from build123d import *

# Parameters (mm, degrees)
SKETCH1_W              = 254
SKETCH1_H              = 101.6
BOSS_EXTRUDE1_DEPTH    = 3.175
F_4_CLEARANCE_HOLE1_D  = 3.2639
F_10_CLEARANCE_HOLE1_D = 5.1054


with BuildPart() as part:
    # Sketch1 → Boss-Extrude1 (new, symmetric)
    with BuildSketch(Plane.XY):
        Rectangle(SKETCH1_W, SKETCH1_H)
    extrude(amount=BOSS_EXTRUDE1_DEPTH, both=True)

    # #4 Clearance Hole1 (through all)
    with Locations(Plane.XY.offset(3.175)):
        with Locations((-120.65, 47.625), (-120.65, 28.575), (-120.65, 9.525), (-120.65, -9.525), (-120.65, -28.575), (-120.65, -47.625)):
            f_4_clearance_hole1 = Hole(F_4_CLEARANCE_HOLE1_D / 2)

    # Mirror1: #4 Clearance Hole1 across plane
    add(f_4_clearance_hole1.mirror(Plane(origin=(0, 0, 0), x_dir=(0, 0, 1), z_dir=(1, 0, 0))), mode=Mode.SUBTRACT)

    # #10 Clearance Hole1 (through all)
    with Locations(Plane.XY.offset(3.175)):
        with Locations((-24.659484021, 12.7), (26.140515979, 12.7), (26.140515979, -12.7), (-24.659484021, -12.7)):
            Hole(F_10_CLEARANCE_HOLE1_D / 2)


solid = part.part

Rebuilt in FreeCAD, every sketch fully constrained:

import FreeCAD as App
import Part
import Sketcher
Q = App.Units.Quantity

doc = App.newDocument("Part")
body = doc.addObject("PartDesign::Body", "Body")

sketch1 = body.newObject("Sketcher::SketchObject", "Sketch")
sketch1.AttachmentSupport = (doc.getObject("XY_Plane"), [""])
sketch1.MapMode = "FlatFace"
sketch1.addGeometry([
    Part.LineSegment(App.Vector(-127, 51, 0), App.Vector(-127, -51, 0)),
    Part.LineSegment(App.Vector(-127, -51, 0), App.Vector(127, -51, 0)),
    Part.LineSegment(App.Vector(127, -51, 0), App.Vector(127, 51, 0)),
    Part.LineSegment(App.Vector(127, 51, 0), App.Vector(-127, 51, 0)),
], False)
sketch1.addConstraint([
    Sketcher.Constraint("Coincident", 0, 2, 1, 1),
    Sketcher.Constraint("Coincident", 1, 2, 2, 1),
    Sketcher.Constraint("Coincident", 2, 2, 3, 1),
    Sketcher.Constraint("Coincident", 3, 2, 0, 1),
    Sketcher.Constraint("Vertical", 0),
    Sketcher.Constraint("Horizontal", 1),
    Sketcher.Constraint("Vertical", 2),
    Sketcher.Constraint("Horizontal", 3),
    Sketcher.Constraint("Symmetric", 0, 2, 2, 2, -1, 1),
    Sketcher.Constraint("DistanceX", 1, 1, 1, 2, Q("10 in")),
    Sketcher.Constraint("DistanceY", 0, 2, 0, 1, Q("4 in")),
])
pad1 = body.newObject("PartDesign::Pad", "Pad")
pad1.Profile = sketch1
pad1.Length = Q("0.25 in")
pad1.Midplane = True

sketch2 = body.newObject("Sketcher::SketchObject", "Sketch001")
sketch2.AttachmentSupport = (doc.getObject("XY_Plane"), [""])
sketch2.MapMode = "FlatFace"
sketch2.AttachmentOffset = App.Placement(App.Vector(0, 0, 0.125 * 25.4), App.Rotation())
sketch2.addGeometry([
    Part.Circle(App.Vector(-120.7, 47.6, 0), App.Vector(0, 0, 1), 1.6),
    Part.Circle(App.Vector(-120.7, 28.6, 0), App.Vector(0, 0, 1), 1.6),
    Part.Circle(App.Vector(-120.7, 9.5, 0), App.Vector(0, 0, 1), 1.6),
    Part.Circle(App.Vector(-120.7, -9.5, 0), App.Vector(0, 0, 1), 1.6),
    Part.Circle(App.Vector(-120.7, -28.6, 0), App.Vector(0, 0, 1), 1.6),
    Part.Circle(App.Vector(-120.7, -47.6, 0), App.Vector(0, 0, 1), 1.6),
], False)
sketch2.addConstraint([
    Sketcher.Constraint("Equal", 0, 1),
    Sketcher.Constraint("Equal", 1, 2),
    Sketcher.Constraint("Equal", 2, 3),
    Sketcher.Constraint("Equal", 3, 4),
    Sketcher.Constraint("Equal", 4, 5),
    Sketcher.Constraint("Symmetric", 2, 3, 3, 3, -1),
    Sketcher.Constraint("Symmetric", 1, 3, 4, 3, -1),
    Sketcher.Constraint("Symmetric", 0, 3, 5, 3, -1),
    Sketcher.Constraint("Vertical", 0, 3, 1, 3),
    Sketcher.Constraint("Vertical", 1, 3, 2, 3),
    Sketcher.Constraint("DistanceY", 4, 3, 0, 3, Q("3 in")),
    Sketcher.Constraint("Diameter", 0, Q("0.1285 in")),
    Sketcher.Constraint("DistanceY", 2, 3, 0, 3, Q("1.5 in")),
    Sketcher.Constraint("DistanceX", 0, 3, -1, 1, Q("4.75 in")),
    Sketcher.Constraint("DistanceY", 1, 3, 0, 3, Q("0.75 in")),
])
doc.recompute()
hole = body.newObject("PartDesign::Hole", "Hole")
hole.Profile = sketch2
hole.ThreadType = "None"
hole.Diameter = Q("0.1285 in")
hole.DepthType = "ThroughAll"
doc.recompute()

mirrored = body.newObject("PartDesign::Mirrored", "Mirrored")
mirrored.Originals = [hole]
mirrored.MirrorPlane = (doc.getObject("YZ_Plane"), [""])
body.Tip = mirrored

sketch3 = body.newObject("Sketcher::SketchObject", "Sketch002")
sketch3.AttachmentSupport = (doc.getObject("XY_Plane"), [""])
sketch3.MapMode = "FlatFace"
sketch3.AttachmentOffset = App.Placement(App.Vector(0, 0, 0.125 * 25.4), App.Rotation())
sketch3.addGeometry([
    Part.Circle(App.Vector(-24.7, 12.7, 0), App.Vector(0, 0, 1), 2.6),
    Part.Circle(App.Vector(26.1, 12.7, 0), App.Vector(0, 0, 1), 2.6),
    Part.Circle(App.Vector(26.1, -12.7, 0), App.Vector(0, 0, 1), 2.6),
    Part.Circle(App.Vector(-24.7, -12.7, 0), App.Vector(0, 0, 1), 2.6),
], False)
sketch3.addConstraint([
    Sketcher.Constraint("Equal", 0, 1),
    Sketcher.Constraint("Equal", 1, 2),
    Sketcher.Constraint("Equal", 2, 3),
    Sketcher.Constraint("Symmetric", 1, 3, 2, 3, -1),
    Sketcher.Constraint("Symmetric", 0, 3, 3, 3, -1),
    Sketcher.Constraint("Horizontal", 0, 3, 1, 3),
    Sketcher.Constraint("Diameter", 0, Q("0.201 in")),
    Sketcher.Constraint("DistanceX", 0, 3, 1, 3, Q("2 in")),
    Sketcher.Constraint("DistanceY", 2, 3, 1, 3, Q("1 in")),
    Sketcher.Constraint("DistanceX", 0, 3, -1, 1, 24.659484),
])
doc.recompute()
hole2 = body.newObject("PartDesign::Hole", "Hole001")
hole2.Profile = sketch3
hole2.ThreadType = "None"
hole2.Diameter = Q("0.201 in")
hole2.DepthType = "ThroughAll"

doc.recompute()
